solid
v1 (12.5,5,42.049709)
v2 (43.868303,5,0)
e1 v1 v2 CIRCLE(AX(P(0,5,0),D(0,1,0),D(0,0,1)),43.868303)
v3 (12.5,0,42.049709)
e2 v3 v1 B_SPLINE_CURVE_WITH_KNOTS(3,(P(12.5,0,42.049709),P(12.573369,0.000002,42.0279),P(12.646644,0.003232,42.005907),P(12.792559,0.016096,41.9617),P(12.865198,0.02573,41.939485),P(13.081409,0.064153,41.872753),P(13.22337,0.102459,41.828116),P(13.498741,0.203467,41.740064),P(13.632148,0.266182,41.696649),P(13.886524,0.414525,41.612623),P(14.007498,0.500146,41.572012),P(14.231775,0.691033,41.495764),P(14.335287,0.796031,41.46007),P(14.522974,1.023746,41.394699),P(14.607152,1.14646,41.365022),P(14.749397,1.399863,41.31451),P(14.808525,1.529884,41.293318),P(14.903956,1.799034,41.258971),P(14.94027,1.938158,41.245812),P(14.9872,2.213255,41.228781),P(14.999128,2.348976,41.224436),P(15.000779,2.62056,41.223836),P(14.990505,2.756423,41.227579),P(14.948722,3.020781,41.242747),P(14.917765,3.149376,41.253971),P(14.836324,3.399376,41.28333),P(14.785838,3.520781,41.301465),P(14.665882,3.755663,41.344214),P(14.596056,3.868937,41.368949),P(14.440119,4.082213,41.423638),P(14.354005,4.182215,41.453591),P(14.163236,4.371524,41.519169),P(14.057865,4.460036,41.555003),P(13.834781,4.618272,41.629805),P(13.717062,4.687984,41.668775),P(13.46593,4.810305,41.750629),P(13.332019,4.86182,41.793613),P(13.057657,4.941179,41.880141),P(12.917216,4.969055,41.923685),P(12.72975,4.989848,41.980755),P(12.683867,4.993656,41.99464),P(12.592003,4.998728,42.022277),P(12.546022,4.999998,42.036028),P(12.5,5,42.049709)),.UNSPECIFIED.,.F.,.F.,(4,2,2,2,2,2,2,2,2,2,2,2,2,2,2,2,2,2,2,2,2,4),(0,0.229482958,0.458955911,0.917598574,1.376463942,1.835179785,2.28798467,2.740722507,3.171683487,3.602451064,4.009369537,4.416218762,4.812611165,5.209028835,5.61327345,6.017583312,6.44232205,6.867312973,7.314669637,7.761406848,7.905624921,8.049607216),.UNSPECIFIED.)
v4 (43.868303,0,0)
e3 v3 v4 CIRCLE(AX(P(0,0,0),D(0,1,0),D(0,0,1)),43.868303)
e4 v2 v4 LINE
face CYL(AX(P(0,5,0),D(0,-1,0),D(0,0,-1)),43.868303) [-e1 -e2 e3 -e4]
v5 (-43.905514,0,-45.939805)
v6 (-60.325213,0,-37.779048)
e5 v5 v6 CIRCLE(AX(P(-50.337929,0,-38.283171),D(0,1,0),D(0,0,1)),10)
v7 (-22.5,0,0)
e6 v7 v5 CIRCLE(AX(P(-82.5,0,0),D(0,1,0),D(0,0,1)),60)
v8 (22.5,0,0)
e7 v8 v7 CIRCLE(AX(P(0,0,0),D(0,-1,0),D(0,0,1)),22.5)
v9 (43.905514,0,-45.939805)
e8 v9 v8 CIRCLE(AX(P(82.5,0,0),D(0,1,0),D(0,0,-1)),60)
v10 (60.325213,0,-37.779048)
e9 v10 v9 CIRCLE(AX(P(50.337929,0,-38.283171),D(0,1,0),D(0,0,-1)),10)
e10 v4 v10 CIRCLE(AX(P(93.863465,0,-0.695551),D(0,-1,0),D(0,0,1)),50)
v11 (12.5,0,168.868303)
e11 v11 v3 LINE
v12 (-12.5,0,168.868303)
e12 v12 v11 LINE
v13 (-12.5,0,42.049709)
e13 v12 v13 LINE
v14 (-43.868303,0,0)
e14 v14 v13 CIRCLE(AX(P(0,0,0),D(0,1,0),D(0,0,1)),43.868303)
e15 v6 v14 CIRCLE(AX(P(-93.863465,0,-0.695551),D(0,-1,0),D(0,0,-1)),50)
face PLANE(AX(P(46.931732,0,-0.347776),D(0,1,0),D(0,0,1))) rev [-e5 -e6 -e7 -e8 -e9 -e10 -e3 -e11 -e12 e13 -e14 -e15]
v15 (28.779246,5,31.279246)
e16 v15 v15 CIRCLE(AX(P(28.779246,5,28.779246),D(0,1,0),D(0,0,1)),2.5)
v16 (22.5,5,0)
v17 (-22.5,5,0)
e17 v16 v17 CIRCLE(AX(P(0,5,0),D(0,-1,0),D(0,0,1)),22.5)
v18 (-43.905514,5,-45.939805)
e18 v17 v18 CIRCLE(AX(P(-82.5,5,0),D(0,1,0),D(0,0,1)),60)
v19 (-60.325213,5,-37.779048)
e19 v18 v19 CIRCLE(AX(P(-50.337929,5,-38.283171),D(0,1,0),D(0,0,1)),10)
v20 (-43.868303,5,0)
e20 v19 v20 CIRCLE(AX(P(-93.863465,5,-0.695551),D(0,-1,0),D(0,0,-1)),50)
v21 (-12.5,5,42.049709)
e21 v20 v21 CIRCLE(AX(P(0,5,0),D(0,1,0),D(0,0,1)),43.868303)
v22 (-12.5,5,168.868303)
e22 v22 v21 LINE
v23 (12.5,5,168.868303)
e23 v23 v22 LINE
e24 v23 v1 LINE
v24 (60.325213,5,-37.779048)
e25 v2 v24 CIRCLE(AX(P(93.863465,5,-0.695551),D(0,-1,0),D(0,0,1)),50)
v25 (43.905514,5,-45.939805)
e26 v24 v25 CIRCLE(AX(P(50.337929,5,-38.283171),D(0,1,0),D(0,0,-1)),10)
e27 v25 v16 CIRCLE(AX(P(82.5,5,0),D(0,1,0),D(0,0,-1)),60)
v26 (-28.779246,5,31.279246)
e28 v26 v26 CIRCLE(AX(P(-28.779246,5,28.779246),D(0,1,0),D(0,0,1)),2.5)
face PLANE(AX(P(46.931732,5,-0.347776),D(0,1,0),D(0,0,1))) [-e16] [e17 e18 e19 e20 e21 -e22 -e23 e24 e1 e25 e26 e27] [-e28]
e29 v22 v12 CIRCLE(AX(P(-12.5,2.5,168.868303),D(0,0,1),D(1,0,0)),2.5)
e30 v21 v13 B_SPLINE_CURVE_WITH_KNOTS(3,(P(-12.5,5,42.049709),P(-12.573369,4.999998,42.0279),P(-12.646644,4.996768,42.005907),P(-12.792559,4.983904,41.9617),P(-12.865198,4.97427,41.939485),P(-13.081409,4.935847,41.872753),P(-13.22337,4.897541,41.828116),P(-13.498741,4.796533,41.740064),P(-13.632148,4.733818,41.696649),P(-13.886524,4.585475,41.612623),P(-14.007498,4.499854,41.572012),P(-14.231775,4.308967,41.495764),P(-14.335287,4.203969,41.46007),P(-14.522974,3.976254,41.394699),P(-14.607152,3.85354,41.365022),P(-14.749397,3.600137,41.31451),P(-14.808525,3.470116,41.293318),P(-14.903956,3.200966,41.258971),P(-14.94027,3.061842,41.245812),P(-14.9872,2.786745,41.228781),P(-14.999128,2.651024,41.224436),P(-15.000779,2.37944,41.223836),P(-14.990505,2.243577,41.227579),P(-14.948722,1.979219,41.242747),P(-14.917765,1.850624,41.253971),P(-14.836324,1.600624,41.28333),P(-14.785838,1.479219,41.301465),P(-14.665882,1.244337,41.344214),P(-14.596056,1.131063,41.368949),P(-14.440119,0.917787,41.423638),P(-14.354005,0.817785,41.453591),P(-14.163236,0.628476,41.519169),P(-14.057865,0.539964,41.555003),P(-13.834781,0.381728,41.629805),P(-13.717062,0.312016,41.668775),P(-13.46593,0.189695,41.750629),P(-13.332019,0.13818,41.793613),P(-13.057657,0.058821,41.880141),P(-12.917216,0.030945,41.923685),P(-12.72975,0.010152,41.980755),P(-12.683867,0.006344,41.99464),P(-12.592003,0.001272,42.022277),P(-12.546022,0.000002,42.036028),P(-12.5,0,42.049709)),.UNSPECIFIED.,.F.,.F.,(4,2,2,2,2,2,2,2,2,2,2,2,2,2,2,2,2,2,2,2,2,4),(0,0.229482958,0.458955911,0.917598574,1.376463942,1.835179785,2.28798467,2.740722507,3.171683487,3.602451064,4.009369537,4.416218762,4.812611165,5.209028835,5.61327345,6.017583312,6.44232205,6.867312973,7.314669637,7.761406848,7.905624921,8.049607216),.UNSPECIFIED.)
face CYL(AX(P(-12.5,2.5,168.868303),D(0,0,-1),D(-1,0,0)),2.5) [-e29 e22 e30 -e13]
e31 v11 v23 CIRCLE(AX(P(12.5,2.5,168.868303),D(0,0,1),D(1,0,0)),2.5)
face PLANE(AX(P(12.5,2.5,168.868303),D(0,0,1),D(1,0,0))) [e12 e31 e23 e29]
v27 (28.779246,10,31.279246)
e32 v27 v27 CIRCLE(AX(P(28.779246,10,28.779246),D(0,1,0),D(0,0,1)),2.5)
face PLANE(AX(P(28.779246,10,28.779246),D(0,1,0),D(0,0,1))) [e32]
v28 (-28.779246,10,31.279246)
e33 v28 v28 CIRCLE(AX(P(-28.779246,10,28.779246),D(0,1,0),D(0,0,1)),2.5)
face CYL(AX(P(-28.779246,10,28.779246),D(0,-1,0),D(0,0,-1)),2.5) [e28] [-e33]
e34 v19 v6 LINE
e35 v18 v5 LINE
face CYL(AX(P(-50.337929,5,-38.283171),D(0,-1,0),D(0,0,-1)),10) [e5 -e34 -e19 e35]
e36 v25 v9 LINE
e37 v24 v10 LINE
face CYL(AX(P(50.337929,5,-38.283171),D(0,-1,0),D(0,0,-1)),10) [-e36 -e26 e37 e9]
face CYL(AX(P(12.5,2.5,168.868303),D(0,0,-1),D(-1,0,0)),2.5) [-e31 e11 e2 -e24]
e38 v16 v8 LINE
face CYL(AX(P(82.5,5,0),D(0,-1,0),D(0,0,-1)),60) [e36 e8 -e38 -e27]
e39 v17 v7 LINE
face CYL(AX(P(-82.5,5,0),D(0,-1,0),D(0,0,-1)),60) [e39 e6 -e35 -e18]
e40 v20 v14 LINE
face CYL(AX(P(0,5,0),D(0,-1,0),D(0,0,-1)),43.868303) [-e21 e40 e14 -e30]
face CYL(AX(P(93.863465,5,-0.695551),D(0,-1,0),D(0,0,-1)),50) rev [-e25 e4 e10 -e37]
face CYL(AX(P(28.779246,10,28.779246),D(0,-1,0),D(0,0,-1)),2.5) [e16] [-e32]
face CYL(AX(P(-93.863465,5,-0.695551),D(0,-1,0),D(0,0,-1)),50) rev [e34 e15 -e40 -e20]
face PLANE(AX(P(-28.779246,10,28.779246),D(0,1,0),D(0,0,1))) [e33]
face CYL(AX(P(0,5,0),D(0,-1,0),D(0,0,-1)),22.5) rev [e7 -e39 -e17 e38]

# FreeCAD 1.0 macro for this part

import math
import FreeCAD as App
import Part
import Sketcher

V = App.Vector
Q = App.Units.Quantity

doc = App.newDocument("Part")
body = doc.addObject("PartDesign::Body", "Body")

# Sketch on XZ plane
sketch1 = body.newObject("Sketcher::SketchObject", "Sketch")
sketch1.AttachmentSupport = (doc.getObject("XZ_Plane"), [""])
sketch1.MapMode = "FlatFace"
sketch1.addGeometry([
    Part.ArcOfCircle(Part.Circle(V(0, 0, 0), V(0, 0, 1), 22), math.radians(0), math.radians(180)),  # 0
    Part.ArcOfCircle(Part.Circle(V(-83, 0, 0), V(0, 0, 1), 60), math.radians(-50), math.radians(0)),  # 1
    Part.ArcOfCircle(Part.Circle(V(-50, -38, 0), V(0, 0, 1), 10), math.radians(177), math.radians(310)),  # 2
    Part.ArcOfCircle(Part.Circle(V(-94, -1, 0), V(0, 0, 1), 50), math.radians(-48), math.radians(1)),  # 3
    Part.ArcOfCircle(Part.Circle(V(0, 0, 0), V(0, 0, 1), 44), math.radians(0), math.radians(180)),  # 4
    Part.ArcOfCircle(Part.Circle(V(94, -1, 0), V(0, 0, 1), 50), math.radians(179), math.radians(228)),  # 5
    Part.ArcOfCircle(Part.Circle(V(50, -38, 0), V(0, 0, 1), 10), math.radians(-130), math.radians(3)),  # 6
    Part.ArcOfCircle(Part.Circle(V(83, 0, 0), V(0, 0, 1), 60), math.radians(-180), math.radians(-130)),  # 7
], False)
sketch1.addConstraint([
    Sketcher.Constraint("Tangent", 0, 2, 1, 2),
    Sketcher.Constraint("Tangent", 1, 1, 2, 2),
    Sketcher.Constraint("Coincident", 2, 1, 3, 1),
    Sketcher.Constraint("Coincident", 3, 2, 4, 2),
    Sketcher.Constraint("Coincident", 4, 1, 5, 1),
    Sketcher.Constraint("Coincident", 5, 2, 6, 2),
    Sketcher.Constraint("Tangent", 6, 1, 7, 2),
    Sketcher.Constraint("Tangent", 7, 1, 0, 1),
    Sketcher.Constraint("Coincident", 0, 3, -1, 1),
    Sketcher.Constraint("Coincident", 4, 3, -1, 1),
    Sketcher.Constraint("Equal", 3, 5),
    Sketcher.Constraint("Equal", 2, 6),
    Sketcher.Constraint("Equal", 1, 7),
    Sketcher.Constraint("Symmetric", 3, 3, 5, 3, -2),
    Sketcher.Constraint("Symmetric", 2, 3, 6, 3, -2),
    Sketcher.Constraint("PointOnObject", 1, 3, -1),
    Sketcher.Constraint("PointOnObject", 3, 2, -1),
    Sketcher.Constraint("Radius", 1, Q("60 mm")),
    Sketcher.Constraint("Radius", 2, Q("10 mm")),
    Sketcher.Constraint("Radius", 3, Q("50 mm")),
    Sketcher.Constraint("Radius", 0, Q("22.5 mm")),
    Sketcher.Constraint("Radius", 4, Q("43.868303 mm")),
    Sketcher.Constraint("DistanceX", 2, 1, 1, 1, Q("16.419699 mm")),
    Sketcher.Constraint("DistanceX", 2, 3, -1, 1, Q("50.337929 mm")),
])
pad1 = body.newObject("PartDesign::Pad", "Pad")
pad1.Profile = sketch1
pad1.Length = 5
pad1.Reversed = True

# Sketch on XZ plane
sketch2 = body.newObject("Sketcher::SketchObject", "Sketch001")
sketch2.AttachmentSupport = (doc.getObject("XZ_Plane"), [""])
sketch2.MapMode = "FlatFace"
sketch2.AttachmentOffset = App.Placement(V(0, 0, -5), App.Rotation())
sketch2.addGeometry([
    Part.Circle(V(28.8, 28.8, 0), V(0, 0, 1), 2.5),
    Part.Circle(V(-28.8, 28.8, 0), V(0, 0, 1), 2.5),
], False)
sketch2.addConstraint([
    Sketcher.Constraint("Equal", 0, 1),
    Sketcher.Constraint("Symmetric", 0, 3, 1, 3, -2),
    Sketcher.Constraint("Diameter", 0, Q("5 mm")),
    Sketcher.Constraint("DistanceX", 1, 3, 0, 3, Q("57.558492 mm")),
    Sketcher.Constraint("DistanceY", -1, 1, 0, 3, Q("28.779246 mm")),
])
pad2 = body.newObject("PartDesign::Pad", "Pad001")
pad2.Profile = sketch2
pad2.Length = 5
pad2.Reversed = True

# Sketch on XY plane
sketch3 = body.newObject("Sketcher::SketchObject", "Sketch002")
sketch3.AttachmentSupport = (doc.getObject("XY_Plane"), [""])
sketch3.MapMode = "FlatFace"
sketch3.AttachmentOffset = App.Placement(V(0, 0, 41.224119), App.Rotation())
sketch3.addGeometry([
    Part.LineSegment(V(-12.5, 0, 0), V(12.5, 0, 0)),
    Part.ArcOfCircle(Part.Circle(V(12.5, 2.5, 0), V(0, 0, 1), 2.5), math.radians(-90), math.radians(90)),
    Part.LineSegment(V(12.5, 5, 0), V(-12.5, 5, 0)),
    Part.ArcOfCircle(Part.Circle(V(-12.5, 2.5, 0), V(0, 0, 1), 2.5), math.radians(90), math.radians(270)),
], False)
sketch3.addConstraint([
    Sketcher.Constraint("Tangent", 0, 2, 1, 1),
    Sketcher.Constraint("Tangent", 1, 2, 2, 1),
    Sketcher.Constraint("Tangent", 2, 2, 3, 1),
    Sketcher.Constraint("Tangent", 3, 2, 0, 1),
    Sketcher.Constraint("Horizontal", 0),
    Sketcher.Constraint("Horizontal", 2),
    Sketcher.Constraint("Symmetric", 0, 2, 3, 2, -1, 1),
    Sketcher.Constraint("Radius", 1, Q("2.5 mm")),
    Sketcher.Constraint("DistanceX", 0, 1, 0, 2, Q("25 mm")),
])
pad3 = body.newObject("PartDesign::Pad", "Pad002")
pad3.Profile = sketch3
pad3.Length = 127.644184

doc.recompute()
